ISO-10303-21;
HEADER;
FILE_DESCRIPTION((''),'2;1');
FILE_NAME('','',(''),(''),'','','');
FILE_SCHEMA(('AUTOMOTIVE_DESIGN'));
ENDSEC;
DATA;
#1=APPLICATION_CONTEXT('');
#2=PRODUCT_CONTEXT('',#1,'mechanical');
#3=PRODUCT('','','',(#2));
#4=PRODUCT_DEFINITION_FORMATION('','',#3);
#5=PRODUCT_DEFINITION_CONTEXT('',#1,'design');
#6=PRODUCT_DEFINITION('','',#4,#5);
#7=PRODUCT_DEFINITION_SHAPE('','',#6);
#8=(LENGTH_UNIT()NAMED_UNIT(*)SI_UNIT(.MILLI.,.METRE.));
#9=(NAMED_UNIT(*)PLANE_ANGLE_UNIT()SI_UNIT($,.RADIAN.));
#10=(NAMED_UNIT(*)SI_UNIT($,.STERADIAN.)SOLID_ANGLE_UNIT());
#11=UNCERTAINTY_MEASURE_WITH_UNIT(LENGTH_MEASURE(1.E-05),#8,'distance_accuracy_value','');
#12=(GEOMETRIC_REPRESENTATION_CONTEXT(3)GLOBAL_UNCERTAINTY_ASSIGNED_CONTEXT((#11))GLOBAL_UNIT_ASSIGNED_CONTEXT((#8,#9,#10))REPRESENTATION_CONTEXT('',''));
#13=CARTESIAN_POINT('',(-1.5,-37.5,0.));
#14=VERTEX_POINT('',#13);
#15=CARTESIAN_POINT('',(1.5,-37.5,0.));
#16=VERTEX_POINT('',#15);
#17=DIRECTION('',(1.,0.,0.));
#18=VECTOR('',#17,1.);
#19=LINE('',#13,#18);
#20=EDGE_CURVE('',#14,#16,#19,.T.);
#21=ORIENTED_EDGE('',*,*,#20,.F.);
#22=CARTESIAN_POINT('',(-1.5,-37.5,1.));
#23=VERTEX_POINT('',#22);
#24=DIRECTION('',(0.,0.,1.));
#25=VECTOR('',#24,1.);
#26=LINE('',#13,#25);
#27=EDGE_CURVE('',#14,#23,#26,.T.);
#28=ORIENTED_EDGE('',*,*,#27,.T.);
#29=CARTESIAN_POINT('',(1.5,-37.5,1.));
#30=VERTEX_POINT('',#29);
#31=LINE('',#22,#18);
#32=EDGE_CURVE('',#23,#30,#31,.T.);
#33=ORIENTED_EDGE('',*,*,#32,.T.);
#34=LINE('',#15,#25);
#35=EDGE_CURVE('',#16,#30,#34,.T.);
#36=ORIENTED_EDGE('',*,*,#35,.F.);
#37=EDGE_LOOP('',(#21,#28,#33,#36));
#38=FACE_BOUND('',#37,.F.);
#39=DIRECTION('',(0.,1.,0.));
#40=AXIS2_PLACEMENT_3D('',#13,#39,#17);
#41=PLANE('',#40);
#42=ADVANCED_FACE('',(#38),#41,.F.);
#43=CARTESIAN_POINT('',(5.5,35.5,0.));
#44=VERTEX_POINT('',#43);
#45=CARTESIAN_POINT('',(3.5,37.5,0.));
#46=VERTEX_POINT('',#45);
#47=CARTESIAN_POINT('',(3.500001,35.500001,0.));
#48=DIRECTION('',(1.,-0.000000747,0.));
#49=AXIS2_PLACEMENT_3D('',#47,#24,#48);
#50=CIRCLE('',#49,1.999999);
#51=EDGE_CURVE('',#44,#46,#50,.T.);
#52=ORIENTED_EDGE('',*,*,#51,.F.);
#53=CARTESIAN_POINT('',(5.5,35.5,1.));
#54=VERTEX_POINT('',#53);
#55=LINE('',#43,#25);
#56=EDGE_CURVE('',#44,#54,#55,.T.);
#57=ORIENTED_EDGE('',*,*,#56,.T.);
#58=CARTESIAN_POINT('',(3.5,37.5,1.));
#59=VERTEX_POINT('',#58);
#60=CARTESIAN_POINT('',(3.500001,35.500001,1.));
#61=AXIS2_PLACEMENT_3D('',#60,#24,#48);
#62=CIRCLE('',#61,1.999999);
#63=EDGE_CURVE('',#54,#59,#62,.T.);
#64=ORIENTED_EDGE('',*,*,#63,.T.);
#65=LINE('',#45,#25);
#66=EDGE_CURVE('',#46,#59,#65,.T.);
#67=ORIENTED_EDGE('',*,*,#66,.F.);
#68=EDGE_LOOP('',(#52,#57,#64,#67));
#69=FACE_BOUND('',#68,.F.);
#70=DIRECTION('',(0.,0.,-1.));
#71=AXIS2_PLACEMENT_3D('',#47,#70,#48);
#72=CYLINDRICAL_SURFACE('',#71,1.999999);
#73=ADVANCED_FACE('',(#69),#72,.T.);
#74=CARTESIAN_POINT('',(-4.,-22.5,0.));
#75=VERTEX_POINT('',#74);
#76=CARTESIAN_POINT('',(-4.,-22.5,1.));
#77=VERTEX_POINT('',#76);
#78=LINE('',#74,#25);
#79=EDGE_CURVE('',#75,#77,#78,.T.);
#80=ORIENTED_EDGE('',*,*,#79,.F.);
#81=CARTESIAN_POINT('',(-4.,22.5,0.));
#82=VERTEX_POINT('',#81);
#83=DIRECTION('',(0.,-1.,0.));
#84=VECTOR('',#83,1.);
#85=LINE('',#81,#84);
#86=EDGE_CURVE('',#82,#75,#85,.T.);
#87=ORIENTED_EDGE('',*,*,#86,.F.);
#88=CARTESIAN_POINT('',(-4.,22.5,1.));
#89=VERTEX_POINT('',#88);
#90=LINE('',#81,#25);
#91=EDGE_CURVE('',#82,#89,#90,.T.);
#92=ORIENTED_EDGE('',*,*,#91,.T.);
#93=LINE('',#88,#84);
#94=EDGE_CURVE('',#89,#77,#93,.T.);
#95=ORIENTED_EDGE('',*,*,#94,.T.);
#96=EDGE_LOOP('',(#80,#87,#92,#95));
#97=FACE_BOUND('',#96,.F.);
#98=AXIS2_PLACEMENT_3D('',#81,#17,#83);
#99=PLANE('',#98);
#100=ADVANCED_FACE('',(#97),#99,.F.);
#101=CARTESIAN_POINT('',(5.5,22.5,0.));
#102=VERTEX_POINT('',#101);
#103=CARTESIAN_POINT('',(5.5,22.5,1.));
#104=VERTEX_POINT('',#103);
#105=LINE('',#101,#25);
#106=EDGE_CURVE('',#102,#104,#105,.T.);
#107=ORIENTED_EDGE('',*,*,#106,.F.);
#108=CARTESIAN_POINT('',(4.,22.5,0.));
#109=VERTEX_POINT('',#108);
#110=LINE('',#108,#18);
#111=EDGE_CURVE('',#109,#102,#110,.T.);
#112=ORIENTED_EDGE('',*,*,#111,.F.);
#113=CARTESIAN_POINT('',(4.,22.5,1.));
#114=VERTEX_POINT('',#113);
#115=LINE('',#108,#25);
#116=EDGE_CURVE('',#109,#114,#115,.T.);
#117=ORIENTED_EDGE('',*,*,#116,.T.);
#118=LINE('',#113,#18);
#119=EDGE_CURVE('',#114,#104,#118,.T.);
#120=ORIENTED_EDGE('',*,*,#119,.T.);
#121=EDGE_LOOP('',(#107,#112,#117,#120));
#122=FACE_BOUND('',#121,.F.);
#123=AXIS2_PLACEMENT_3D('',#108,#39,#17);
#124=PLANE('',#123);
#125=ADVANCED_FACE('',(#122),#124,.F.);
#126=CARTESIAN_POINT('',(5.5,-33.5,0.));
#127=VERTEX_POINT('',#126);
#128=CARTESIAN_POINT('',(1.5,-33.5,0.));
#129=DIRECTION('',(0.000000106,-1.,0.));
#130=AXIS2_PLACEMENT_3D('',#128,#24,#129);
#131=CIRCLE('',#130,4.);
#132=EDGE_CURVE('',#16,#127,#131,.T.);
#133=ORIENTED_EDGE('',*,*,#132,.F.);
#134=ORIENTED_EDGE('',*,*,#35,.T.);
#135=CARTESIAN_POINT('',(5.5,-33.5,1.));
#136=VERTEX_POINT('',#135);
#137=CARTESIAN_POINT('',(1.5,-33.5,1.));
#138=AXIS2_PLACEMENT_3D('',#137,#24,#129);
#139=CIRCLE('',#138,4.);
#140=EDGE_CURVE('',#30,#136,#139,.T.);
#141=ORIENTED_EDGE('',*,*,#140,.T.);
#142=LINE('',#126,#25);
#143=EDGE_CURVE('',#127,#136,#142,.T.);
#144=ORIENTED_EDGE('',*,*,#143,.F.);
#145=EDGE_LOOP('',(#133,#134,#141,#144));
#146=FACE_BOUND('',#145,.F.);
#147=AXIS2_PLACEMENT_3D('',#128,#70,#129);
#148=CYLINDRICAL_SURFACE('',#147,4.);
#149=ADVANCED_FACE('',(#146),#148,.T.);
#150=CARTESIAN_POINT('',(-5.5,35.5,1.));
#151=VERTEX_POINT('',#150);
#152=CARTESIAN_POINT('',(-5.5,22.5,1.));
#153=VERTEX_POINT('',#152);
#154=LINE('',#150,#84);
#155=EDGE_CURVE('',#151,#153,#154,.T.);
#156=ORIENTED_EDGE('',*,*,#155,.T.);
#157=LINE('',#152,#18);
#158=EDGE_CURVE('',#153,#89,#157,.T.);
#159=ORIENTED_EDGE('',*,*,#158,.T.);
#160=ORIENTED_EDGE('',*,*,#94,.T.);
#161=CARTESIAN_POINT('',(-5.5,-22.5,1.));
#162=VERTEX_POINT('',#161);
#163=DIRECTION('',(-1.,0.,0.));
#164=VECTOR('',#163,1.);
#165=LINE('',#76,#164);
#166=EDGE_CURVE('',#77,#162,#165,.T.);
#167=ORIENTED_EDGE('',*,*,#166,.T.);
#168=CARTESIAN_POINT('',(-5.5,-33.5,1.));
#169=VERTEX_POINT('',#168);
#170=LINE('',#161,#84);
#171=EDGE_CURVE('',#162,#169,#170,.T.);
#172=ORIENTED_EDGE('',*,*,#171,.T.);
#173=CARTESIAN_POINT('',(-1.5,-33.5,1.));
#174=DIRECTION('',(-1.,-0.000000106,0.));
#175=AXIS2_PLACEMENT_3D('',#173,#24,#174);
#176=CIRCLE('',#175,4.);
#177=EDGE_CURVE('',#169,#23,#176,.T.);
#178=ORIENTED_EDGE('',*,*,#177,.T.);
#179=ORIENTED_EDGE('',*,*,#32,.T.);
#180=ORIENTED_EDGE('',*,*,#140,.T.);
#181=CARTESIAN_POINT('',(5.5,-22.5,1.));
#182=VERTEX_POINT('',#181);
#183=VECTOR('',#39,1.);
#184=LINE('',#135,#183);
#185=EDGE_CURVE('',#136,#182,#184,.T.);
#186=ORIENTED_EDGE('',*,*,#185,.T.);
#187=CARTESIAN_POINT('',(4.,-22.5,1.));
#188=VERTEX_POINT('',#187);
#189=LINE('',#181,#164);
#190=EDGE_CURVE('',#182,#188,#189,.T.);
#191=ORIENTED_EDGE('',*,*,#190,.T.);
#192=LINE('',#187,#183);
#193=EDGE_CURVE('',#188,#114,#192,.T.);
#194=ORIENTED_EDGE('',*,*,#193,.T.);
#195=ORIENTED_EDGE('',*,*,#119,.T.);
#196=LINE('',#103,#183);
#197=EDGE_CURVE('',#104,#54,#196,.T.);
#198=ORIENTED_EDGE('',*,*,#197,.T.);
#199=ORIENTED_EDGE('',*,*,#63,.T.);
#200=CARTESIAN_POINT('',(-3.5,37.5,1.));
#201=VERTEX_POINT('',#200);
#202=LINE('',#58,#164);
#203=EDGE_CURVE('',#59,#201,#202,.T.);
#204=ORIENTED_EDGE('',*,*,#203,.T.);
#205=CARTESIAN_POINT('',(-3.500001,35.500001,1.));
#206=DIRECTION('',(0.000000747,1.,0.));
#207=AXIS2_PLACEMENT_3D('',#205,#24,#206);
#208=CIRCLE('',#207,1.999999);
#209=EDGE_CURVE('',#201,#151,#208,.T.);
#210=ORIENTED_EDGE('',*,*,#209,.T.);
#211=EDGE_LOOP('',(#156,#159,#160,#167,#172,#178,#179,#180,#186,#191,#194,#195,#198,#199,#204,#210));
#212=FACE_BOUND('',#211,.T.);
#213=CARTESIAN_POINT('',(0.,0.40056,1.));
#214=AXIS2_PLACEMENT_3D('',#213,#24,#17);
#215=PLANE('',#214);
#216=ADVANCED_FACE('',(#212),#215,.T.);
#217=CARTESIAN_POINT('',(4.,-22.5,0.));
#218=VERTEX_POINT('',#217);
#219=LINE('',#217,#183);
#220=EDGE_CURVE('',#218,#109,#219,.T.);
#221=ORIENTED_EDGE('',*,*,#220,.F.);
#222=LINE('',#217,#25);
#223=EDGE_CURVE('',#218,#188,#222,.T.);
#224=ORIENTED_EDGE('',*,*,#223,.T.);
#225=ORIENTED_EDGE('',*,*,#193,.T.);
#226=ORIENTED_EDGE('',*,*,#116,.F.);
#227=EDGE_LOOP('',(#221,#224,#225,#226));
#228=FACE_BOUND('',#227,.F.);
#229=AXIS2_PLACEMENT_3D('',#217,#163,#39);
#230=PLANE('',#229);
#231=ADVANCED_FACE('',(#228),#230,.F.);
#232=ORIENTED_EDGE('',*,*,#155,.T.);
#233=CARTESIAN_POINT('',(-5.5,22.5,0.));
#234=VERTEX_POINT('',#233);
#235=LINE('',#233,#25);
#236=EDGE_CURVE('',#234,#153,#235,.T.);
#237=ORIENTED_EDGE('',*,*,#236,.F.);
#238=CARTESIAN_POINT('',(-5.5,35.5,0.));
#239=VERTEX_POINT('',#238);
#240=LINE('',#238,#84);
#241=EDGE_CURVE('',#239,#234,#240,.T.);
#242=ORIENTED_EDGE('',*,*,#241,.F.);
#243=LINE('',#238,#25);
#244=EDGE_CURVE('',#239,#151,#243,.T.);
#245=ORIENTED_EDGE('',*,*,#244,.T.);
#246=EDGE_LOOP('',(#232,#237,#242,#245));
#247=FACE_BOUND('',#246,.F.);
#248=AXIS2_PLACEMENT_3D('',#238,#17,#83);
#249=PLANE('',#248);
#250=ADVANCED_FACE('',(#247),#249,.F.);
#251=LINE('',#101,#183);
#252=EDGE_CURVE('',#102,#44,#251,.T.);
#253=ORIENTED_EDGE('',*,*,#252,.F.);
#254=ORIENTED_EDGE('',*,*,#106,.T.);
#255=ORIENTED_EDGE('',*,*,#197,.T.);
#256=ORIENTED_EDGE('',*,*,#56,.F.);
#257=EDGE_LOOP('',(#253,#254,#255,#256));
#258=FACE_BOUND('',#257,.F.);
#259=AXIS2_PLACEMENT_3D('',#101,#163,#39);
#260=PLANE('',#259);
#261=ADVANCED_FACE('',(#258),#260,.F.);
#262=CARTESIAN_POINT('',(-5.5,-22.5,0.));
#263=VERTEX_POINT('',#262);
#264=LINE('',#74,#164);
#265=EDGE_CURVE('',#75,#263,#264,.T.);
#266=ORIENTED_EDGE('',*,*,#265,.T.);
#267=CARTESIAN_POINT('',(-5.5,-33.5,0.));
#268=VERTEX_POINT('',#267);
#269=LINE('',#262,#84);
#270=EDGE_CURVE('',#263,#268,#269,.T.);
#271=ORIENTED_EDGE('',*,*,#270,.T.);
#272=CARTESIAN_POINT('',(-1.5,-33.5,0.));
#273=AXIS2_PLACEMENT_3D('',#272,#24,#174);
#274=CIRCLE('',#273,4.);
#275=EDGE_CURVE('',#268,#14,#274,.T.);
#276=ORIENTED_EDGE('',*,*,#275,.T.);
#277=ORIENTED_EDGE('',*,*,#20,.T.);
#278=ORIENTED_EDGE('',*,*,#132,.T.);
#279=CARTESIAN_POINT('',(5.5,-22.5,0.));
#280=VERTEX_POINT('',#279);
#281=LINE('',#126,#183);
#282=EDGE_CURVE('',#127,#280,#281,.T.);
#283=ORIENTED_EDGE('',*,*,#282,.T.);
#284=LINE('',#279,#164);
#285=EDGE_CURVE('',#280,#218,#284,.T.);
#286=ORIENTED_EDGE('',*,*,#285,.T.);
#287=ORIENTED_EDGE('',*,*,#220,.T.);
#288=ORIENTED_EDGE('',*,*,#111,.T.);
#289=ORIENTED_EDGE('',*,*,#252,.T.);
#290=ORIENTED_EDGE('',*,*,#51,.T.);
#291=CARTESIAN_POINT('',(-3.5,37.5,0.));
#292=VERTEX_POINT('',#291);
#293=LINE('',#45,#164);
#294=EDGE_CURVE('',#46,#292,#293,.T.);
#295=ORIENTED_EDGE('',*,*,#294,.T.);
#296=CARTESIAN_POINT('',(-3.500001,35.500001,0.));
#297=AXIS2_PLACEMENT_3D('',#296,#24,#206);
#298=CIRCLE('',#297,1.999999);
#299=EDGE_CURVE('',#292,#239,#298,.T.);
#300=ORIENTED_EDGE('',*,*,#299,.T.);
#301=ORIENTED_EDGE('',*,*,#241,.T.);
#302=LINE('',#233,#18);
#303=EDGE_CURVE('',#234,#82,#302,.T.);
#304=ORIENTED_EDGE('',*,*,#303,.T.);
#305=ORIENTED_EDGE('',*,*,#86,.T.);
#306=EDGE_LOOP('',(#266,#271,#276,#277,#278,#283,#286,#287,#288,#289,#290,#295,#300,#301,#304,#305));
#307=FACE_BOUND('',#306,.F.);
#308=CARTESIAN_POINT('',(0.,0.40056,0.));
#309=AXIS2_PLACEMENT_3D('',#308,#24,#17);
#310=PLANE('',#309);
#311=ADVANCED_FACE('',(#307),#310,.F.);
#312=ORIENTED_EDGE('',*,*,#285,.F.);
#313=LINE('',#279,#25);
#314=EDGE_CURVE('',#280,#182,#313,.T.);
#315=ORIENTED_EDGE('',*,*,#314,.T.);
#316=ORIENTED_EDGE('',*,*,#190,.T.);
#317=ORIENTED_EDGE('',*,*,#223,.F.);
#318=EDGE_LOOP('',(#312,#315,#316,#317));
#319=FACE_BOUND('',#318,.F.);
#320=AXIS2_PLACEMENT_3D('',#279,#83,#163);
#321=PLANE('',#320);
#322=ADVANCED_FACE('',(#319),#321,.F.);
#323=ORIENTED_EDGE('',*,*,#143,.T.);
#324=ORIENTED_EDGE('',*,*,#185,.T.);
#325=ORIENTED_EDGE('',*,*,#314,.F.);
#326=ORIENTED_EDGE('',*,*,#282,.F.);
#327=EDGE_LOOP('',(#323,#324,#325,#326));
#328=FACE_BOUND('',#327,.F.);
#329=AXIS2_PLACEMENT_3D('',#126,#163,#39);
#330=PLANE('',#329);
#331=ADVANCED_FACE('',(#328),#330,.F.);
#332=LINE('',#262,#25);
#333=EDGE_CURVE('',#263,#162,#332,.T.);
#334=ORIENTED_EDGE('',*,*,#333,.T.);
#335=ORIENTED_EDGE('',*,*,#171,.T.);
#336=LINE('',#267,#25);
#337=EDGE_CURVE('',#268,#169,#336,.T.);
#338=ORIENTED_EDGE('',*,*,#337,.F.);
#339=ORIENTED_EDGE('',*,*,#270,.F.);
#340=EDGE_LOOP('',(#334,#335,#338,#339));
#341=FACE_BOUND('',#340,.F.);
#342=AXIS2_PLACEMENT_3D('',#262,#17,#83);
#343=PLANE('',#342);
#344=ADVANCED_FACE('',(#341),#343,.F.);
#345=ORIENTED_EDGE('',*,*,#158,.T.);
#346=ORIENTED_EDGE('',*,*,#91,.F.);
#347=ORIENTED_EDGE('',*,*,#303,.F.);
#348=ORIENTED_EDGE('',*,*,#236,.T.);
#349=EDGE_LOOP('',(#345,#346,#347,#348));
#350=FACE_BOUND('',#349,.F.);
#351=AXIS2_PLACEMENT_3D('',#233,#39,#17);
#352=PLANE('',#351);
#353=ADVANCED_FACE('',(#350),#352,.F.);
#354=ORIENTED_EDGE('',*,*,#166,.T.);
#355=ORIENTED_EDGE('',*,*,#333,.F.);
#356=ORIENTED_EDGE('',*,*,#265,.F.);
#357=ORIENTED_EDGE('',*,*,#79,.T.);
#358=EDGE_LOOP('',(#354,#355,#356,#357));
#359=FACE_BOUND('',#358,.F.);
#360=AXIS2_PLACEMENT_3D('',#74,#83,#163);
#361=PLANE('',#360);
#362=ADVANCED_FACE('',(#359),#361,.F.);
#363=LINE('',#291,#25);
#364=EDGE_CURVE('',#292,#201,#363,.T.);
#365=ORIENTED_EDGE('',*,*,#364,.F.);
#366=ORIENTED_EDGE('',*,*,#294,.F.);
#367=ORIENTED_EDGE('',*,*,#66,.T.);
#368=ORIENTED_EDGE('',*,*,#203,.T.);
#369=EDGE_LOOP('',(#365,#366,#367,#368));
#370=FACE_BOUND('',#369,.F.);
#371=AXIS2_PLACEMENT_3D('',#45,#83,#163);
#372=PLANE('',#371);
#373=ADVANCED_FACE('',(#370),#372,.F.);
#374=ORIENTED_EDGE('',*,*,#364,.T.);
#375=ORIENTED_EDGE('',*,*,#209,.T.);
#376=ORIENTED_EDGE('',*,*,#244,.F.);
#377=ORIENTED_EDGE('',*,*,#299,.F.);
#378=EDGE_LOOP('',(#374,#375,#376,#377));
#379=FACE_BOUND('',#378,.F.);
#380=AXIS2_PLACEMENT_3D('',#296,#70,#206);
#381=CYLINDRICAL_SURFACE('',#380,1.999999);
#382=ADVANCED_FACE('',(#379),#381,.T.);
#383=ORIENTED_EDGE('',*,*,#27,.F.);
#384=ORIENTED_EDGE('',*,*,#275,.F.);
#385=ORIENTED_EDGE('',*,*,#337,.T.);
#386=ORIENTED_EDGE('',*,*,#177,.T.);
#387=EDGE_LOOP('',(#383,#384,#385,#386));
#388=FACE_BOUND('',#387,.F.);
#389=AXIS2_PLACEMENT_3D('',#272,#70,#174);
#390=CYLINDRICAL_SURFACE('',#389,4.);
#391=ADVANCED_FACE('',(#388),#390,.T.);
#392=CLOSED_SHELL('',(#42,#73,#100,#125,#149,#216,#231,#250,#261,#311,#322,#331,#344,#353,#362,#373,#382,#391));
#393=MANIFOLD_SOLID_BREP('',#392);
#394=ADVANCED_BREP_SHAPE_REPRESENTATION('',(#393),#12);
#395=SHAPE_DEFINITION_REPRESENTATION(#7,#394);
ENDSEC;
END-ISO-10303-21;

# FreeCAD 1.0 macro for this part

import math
import FreeCAD as App
import Part
import Sketcher

V = App.Vector
Q = App.Units.Quantity

doc = App.newDocument("Part")
body = doc.addObject("PartDesign::Body", "Body")

# Sketch on XY plane
sketch1 = body.newObject("Sketcher::SketchObject", "Sketch")
sketch1.AttachmentSupport = (doc.getObject("XY_Plane"), [""])
sketch1.MapMode = "FlatFace"
sketch1.addGeometry([
    Part.ArcOfCircle(Part.Circle(V(3.5, 35.5, 0), V(0, 0, 1), 2), math.radians(0), math.radians(90)),  # 0
    Part.LineSegment(V(3.5, 37.5, 0), V(-3.5, 37.5, 0)),  # 1
    Part.ArcOfCircle(Part.Circle(V(-3.5, 35.5, 0), V(0, 0, 1), 2), math.radians(90), math.radians(180)),  # 2
    Part.LineSegment(V(-5.5, 35.5, 0), V(-5.5, 22.5, 0)),  # 3
    Part.LineSegment(V(-5.5, 22.5, 0), V(-4, 22.5, 0)),  # 4
    Part.LineSegment(V(-4, 22.5, 0), V(-4, -22.5, 0)),  # 5
    Part.LineSegment(V(-4, -22.5, 0), V(-5.5, -22.5, 0)),  # 6
    Part.LineSegment(V(-5.5, -22.5, 0), V(-5.5, -33.5, 0)),  # 7
    Part.ArcOfCircle(Part.Circle(V(-1.5, -33.5, 0), V(0, 0, 1), 4), math.radians(-180), math.radians(-90)),  # 8
    Part.LineSegment(V(-1.5, -37.5, 0), V(1.5, -37.5, 0)),  # 9
    Part.ArcOfCircle(Part.Circle(V(1.5, -33.5, 0), V(0, 0, 1), 4), math.radians(-90), math.radians(0)),  # 10
    Part.LineSegment(V(5.5, -33.5, 0), V(5.5, -22.5, 0)),  # 11
    Part.LineSegment(V(5.5, -22.5, 0), V(4, -22.5, 0)),  # 12
    Part.LineSegment(V(4, -22.5, 0), V(4, 22.5, 0)),  # 13
    Part.LineSegment(V(4, 22.5, 0), V(5.5, 22.5, 0)),  # 14
    Part.LineSegment(V(5.5, 22.5, 0), V(5.5, 35.5, 0)),  # 15
], False)
sketch1.addConstraint([
    Sketcher.Constraint("Tangent", 0, 2, 1, 1),
    Sketcher.Constraint("Tangent", 1, 2, 2, 1),
    Sketcher.Constraint("Tangent", 2, 2, 3, 1),
    Sketcher.Constraint("Coincident", 3, 2, 4, 1),
    Sketcher.Constraint("Coincident", 4, 2, 5, 1),
    Sketcher.Constraint("Coincident", 5, 2, 6, 1),
    Sketcher.Constraint("Coincident", 6, 2, 7, 1),
    Sketcher.Constraint("Tangent", 7, 2, 8, 1),
    Sketcher.Constraint("Tangent", 8, 2, 9, 1),
    Sketcher.Constraint("Tangent", 9, 2, 10, 1),
    Sketcher.Constraint("Tangent", 10, 2, 11, 1),
    Sketcher.Constraint("Coincident", 11, 2, 12, 1),
    Sketcher.Constraint("Coincident", 12, 2, 13, 1),
    Sketcher.Constraint("Coincident", 13, 2, 14, 1),
    Sketcher.Constraint("Coincident", 14, 2, 15, 1),
    Sketcher.Constraint("Tangent", 15, 2, 0, 1),
    Sketcher.Constraint("Horizontal", 1),
    Sketcher.Constraint("Vertical", 3),
    Sketcher.Constraint("Horizontal", 4),
    Sketcher.Constraint("Vertical", 5),
    Sketcher.Constraint("Horizontal", 6),
    Sketcher.Constraint("Vertical", 7),
    Sketcher.Constraint("Horizontal", 9),
    Sketcher.Constraint("Vertical", 11),
    Sketcher.Constraint("Horizontal", 12),
    Sketcher.Constraint("Vertical", 13),
    Sketcher.Constraint("Horizontal", 14),
    Sketcher.Constraint("Vertical", 15),
    Sketcher.Constraint("Equal", 0, 2),
    Sketcher.Constraint("Equal", 8, 10),
    Sketcher.Constraint("Symmetric", 3, 2, 11, 2, -1, 1),
    Sketcher.Constraint("Symmetric", 5, 2, 13, 2, -1, 1),
    Sketcher.Constraint("Symmetric", 6, 2, 11, 2, -2),
    Sketcher.Constraint("Vertical", 11, 2, 14, 2),
    Sketcher.Constraint("Radius", 0, Q("1.999999 mm")),
    Sketcher.Constraint("Radius", 8, Q("4 mm")),
    Sketcher.Constraint("DistanceX", 1, 2, 1, 1, Q("7 mm")),
    Sketcher.Constraint("DistanceY", 3, 2, 3, 1, Q("13 mm")),
    Sketcher.Constraint("DistanceY", 5, 2, 5, 1, Q("45 mm")),
    Sketcher.Constraint("DistanceY", 7, 2, 7, 1, Q("11 mm")),
    Sketcher.Constraint("DistanceX", 4, 1, 4, 2, Q("1.5 mm")),
])
pad1 = body.newObject("PartDesign::Pad", "Pad")
pad1.Profile = sketch1
pad1.Length = 1

doc.recompute()
